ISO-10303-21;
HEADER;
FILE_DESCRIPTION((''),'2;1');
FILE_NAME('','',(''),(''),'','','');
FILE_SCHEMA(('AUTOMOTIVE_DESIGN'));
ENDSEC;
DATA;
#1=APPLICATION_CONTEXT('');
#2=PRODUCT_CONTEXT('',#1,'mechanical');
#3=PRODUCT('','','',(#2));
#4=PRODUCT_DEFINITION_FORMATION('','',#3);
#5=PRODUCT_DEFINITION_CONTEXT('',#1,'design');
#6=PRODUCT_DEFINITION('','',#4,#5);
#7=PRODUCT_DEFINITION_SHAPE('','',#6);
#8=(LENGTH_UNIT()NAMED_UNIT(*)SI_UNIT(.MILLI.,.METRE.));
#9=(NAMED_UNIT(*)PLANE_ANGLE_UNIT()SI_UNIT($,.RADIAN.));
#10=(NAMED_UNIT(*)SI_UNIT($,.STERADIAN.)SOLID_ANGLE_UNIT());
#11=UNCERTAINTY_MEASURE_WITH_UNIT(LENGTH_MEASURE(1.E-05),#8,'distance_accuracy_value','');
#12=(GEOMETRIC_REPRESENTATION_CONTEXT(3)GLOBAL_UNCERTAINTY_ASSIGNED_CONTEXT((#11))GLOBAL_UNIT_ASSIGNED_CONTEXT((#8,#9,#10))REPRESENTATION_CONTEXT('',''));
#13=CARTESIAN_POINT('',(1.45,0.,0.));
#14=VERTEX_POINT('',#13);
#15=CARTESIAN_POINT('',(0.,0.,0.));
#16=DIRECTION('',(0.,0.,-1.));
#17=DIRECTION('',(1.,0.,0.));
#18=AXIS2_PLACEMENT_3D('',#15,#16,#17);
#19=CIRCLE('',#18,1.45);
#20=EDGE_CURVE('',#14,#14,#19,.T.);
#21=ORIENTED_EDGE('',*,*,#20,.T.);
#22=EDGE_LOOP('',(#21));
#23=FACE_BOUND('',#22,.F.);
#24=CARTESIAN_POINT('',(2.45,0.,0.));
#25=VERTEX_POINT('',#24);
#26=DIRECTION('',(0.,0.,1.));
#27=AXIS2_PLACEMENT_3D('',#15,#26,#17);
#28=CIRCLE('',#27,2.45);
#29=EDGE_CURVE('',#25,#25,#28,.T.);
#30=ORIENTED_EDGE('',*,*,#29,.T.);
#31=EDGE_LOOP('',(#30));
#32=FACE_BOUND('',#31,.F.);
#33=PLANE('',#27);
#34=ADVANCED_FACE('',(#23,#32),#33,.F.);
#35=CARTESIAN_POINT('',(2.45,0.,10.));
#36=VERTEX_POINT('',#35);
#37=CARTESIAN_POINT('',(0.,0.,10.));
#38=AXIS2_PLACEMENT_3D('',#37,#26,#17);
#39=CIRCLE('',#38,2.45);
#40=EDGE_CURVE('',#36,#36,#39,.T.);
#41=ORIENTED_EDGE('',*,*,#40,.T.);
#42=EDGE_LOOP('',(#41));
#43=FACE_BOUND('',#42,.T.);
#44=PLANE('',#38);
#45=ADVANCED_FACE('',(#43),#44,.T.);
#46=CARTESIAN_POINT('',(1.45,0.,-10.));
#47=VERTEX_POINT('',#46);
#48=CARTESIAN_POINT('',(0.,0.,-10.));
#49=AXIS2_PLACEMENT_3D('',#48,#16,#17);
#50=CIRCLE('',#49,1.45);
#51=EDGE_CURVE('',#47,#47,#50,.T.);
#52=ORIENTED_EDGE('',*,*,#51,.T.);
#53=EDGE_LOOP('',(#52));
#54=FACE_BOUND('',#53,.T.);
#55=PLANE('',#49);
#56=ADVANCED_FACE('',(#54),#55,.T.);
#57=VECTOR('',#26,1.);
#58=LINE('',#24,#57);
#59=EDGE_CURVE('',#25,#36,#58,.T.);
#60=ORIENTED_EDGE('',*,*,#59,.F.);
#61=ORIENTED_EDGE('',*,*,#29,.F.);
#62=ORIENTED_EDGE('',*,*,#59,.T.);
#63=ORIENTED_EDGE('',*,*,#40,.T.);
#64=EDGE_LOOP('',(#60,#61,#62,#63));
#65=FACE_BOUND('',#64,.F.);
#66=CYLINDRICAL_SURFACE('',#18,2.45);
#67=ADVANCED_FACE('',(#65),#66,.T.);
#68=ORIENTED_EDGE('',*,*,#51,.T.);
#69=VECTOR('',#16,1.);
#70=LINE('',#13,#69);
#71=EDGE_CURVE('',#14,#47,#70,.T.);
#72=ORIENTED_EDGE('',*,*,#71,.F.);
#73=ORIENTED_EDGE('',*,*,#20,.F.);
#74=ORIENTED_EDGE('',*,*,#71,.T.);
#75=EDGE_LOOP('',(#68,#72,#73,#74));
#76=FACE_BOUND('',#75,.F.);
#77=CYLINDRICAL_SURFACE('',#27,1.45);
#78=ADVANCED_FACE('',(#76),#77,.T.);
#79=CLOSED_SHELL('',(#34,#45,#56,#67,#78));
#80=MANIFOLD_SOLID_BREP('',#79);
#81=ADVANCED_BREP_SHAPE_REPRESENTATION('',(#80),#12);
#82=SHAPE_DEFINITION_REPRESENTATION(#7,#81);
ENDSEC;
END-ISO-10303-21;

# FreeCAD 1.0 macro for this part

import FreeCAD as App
import Part
import Sketcher
from FreeCAD import Vector

doc = App.newDocument("Part")
body = doc.addObject("PartDesign::Body", "Body")

sketch1 = doc.addObject("Sketcher::SketchObject", "Sketch")
body.addObject(sketch1)
sketch1.AttachmentSupport = (doc.XY_Plane, [""])
sketch1.MapMode = "FlatFace"
sketch1.addGeometry(Part.Circle(Vector(0, 0, 0), Vector(0, 0, 1), 2.5), False)
sketch1.addConstraint([
    Sketcher.Constraint("Coincident", 0, 3, -1, 1),
    Sketcher.Constraint("Diameter", 0, 4.9),
])
pad1 = doc.addObject("PartDesign::Pad", "Pad")
body.addObject(pad1)
pad1.Profile = sketch1
pad1.Length = 10

sketch2 = doc.addObject("Sketcher::SketchObject", "Sketch001")
body.addObject(sketch2)
sketch2.AttachmentSupport = (doc.XY_Plane, [""])
sketch2.MapMode = "FlatFace"
sketch2.addGeometry(Part.Circle(Vector(0, 0, 0), Vector(0, 0, 1), 1.4), False)
sketch2.addConstraint([
    Sketcher.Constraint("Coincident", 0, 3, -1, 1),
    Sketcher.Constraint("Diameter", 0, 2.9),
])
pad2 = doc.addObject("PartDesign::Pad", "Pad001")
body.addObject(pad2)
pad2.Profile = sketch2
pad2.Length = 10
pad2.Reversed = True

doc.recompute()
